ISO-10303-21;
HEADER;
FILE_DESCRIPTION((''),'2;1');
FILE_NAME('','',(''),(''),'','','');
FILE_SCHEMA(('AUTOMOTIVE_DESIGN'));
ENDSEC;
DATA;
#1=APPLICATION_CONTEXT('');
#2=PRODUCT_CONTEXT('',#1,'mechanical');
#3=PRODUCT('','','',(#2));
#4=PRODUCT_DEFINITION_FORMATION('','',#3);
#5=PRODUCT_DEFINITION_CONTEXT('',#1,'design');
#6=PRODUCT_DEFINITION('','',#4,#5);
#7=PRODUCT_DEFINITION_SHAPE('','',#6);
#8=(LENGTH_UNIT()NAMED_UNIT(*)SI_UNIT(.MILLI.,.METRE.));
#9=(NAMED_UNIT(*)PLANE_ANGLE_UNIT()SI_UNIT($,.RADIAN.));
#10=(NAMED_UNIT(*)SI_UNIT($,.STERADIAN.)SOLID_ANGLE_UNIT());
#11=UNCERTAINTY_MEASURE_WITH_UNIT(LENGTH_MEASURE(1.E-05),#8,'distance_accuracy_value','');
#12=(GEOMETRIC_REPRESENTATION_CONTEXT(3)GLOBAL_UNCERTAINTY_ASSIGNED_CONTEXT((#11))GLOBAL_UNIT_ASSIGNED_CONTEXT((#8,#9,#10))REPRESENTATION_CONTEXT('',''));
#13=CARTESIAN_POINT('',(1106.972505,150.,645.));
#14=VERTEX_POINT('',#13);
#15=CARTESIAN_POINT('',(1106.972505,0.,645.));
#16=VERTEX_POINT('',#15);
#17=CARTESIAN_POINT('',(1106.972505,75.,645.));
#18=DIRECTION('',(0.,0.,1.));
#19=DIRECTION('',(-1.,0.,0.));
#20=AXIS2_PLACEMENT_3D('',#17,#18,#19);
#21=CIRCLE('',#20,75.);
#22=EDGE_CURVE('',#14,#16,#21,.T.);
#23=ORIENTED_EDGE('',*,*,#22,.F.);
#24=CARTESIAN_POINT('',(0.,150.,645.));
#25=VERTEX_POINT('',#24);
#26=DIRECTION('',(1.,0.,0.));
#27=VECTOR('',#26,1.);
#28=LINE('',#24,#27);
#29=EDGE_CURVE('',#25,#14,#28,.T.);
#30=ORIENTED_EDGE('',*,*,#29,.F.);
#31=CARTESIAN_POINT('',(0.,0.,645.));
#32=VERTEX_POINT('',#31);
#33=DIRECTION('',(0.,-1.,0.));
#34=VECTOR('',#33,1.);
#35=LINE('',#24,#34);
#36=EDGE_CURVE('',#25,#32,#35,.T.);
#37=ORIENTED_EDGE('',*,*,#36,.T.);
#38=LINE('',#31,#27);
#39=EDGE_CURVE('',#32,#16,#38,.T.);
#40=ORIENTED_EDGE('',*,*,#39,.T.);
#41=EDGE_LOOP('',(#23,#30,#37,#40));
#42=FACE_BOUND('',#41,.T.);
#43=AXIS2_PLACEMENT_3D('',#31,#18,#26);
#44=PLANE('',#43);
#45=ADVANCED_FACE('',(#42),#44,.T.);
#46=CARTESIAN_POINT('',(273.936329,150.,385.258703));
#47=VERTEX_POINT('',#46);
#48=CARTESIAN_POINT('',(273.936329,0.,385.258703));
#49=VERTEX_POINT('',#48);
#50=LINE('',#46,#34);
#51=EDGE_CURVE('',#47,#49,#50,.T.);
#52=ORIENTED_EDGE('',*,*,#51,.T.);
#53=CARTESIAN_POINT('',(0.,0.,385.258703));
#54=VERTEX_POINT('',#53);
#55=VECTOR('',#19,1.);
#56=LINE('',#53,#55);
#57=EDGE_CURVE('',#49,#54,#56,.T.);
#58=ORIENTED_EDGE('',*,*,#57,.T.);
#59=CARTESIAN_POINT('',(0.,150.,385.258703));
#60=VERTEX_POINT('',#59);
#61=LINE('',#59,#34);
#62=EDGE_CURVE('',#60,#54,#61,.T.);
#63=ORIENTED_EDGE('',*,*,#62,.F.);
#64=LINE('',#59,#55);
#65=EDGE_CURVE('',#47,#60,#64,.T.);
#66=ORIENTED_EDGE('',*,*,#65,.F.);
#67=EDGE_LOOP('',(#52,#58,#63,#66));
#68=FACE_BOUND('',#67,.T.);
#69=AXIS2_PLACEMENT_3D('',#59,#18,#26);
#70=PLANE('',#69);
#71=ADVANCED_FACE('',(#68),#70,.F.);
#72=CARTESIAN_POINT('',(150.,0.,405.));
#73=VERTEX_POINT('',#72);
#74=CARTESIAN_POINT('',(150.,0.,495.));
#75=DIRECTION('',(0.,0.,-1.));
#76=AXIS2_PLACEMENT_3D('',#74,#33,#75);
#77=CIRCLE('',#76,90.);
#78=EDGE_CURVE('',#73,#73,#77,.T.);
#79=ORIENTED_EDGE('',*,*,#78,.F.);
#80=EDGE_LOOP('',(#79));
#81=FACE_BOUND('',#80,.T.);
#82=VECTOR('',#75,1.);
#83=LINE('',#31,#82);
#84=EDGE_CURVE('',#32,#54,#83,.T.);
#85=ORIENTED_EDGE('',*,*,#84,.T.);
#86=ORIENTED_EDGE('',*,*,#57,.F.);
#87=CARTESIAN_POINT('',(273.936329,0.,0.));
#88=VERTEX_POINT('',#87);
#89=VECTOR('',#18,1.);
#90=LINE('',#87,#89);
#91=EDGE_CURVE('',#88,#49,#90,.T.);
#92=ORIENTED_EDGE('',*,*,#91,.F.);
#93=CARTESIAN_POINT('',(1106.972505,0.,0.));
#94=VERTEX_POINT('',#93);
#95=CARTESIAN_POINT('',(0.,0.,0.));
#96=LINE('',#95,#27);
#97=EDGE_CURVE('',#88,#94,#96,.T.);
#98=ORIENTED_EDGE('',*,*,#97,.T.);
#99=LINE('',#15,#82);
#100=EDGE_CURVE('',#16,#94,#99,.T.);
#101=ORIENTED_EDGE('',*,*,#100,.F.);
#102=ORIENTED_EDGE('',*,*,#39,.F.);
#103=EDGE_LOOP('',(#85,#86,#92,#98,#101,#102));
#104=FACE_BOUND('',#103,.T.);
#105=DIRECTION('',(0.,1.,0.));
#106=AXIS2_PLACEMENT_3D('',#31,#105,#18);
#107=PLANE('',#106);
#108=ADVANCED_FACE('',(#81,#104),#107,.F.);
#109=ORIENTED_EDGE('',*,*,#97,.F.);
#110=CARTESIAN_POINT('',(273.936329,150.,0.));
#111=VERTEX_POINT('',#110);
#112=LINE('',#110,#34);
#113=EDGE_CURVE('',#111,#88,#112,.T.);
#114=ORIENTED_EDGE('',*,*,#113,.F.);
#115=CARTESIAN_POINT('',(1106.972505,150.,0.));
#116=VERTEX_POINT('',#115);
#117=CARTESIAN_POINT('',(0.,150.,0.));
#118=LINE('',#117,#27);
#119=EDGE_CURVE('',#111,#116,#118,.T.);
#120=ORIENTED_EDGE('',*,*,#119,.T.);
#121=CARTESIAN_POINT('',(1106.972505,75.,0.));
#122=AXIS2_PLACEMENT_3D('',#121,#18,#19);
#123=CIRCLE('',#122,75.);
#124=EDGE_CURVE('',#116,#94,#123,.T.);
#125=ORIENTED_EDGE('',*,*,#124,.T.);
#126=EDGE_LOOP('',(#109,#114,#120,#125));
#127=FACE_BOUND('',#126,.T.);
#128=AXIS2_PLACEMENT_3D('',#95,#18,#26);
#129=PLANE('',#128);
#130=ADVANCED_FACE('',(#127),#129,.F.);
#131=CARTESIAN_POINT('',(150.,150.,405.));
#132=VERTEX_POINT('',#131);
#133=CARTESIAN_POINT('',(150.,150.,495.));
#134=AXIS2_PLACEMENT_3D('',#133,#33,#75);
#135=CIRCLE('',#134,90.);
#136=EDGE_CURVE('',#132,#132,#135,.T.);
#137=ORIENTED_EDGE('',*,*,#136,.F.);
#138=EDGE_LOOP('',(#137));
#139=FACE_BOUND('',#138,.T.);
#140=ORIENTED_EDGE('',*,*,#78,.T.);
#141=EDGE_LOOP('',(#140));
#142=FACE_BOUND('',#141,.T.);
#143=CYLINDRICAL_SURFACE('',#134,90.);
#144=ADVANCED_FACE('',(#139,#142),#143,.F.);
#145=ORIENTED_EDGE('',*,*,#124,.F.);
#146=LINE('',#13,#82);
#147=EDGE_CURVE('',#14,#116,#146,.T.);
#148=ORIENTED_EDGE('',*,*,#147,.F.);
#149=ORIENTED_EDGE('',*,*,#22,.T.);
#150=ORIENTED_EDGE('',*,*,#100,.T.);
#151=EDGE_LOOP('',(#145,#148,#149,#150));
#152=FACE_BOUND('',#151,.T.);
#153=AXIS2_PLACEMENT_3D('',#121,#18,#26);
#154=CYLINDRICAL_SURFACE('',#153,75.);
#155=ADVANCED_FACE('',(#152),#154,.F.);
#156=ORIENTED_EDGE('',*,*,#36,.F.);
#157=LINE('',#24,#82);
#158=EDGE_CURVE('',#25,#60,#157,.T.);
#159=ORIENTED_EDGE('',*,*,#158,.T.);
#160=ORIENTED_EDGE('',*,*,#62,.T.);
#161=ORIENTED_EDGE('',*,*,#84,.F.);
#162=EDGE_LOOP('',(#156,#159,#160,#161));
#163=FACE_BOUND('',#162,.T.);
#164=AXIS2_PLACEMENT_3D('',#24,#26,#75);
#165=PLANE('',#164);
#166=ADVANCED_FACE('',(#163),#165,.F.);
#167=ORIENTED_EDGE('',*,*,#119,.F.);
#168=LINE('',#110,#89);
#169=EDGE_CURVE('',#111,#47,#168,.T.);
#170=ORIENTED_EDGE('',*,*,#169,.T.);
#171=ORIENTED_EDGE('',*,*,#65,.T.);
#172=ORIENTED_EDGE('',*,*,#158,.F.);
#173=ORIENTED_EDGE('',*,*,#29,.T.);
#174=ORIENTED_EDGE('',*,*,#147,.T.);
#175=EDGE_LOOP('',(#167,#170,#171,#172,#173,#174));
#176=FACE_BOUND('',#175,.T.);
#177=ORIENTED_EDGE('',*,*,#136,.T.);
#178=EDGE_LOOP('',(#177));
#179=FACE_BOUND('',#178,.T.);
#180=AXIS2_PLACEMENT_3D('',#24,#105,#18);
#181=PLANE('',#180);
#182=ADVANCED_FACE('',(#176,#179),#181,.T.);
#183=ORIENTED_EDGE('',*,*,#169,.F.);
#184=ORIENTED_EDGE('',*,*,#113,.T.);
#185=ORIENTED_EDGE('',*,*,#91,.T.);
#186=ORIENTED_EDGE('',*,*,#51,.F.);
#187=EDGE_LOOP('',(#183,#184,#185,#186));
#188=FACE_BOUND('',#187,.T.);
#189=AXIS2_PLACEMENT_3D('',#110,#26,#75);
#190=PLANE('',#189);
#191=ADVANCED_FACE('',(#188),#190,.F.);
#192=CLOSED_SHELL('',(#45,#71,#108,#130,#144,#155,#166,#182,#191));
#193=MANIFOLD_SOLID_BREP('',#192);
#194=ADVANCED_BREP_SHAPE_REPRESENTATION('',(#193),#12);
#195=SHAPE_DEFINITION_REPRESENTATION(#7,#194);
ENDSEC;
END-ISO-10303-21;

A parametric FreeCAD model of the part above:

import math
import FreeCAD as App
import Part
import Sketcher

doc = App.newDocument("Part")
params = doc.addObject("Spreadsheet::Sheet", "Params")
for row, (alias, value) in enumerate([
    ("sketch1_height", "150 mm"),
    ("pad1_length", "645 mm"),
    ("sketch2_diameter", "180 mm"),
    ("sketch4_radius", "75 mm"),
], start=1):
    params.set(f"A{row}", alias)
    params.set(f"B{row}", "=" + value)
    params.setAlias(f"B{row}", alias)

body = doc.addObject("PartDesign::Body", "Body")

sketch1 = body.newObject("Sketcher::SketchObject", "Sketch")
sketch1.AttachmentSupport = (doc.getObject("XY_Plane"), [""])
sketch1.MapMode = "FlatFace"
sketch1.addGeometry([
    Part.LineSegment(App.Vector(0, 150, 0), App.Vector(0, 0, 0)),
    Part.LineSegment(App.Vector(0, 0, 0), App.Vector(1106.972505, 0, 0)),
    Part.LineSegment(App.Vector(1106.972505, 0, 0), App.Vector(1106.972505, 150, 0)),
    Part.LineSegment(App.Vector(1106.972505, 150, 0), App.Vector(0, 150, 0)),
], False)
sketch1.addConstraint([
    Sketcher.Constraint("Coincident", 0, 2, 1, 1),
    Sketcher.Constraint("Coincident", 1, 2, 2, 1),
    Sketcher.Constraint("Coincident", 2, 2, 3, 1),
    Sketcher.Constraint("Coincident", 3, 2, 0, 1),
    Sketcher.Constraint("Vertical", 0),
    Sketcher.Constraint("Horizontal", 1),
    Sketcher.Constraint("Vertical", 2),
    Sketcher.Constraint("Horizontal", 3),
    Sketcher.Constraint("Coincident", 0, 2, -1, 1),
    Sketcher.Constraint("DistanceY", 0, 2, 0, 1, 150.0),
    Sketcher.Constraint("DistanceX", 1, 1, 1, 2, 1106.972505),
])
sketch1.setExpression("Constraints[9]", "Params.sketch1_height")
pad1 = body.newObject("PartDesign::Pad", "Pad")
pad1.Profile = sketch1
pad1.setExpression("Length", "Params.pad1_length")

sketch2 = body.newObject("Sketcher::SketchObject", "Sketch001")
sketch2.AttachmentSupport = (doc.getObject("XZ_Plane"), [""])
sketch2.MapMode = "FlatFace"
sketch2.addGeometry(Part.Circle(App.Vector(150, 495, 0), App.Vector(0, 0, 1), 90), False)
sketch2.addConstraint([
    Sketcher.Constraint("Diameter", 0, 180.0),
    Sketcher.Constraint("DistanceX", -1, 1, 0, 3, 150.0),
    Sketcher.Constraint("DistanceY", -1, 1, 0, 3, 495.0),
])
sketch2.setExpression("Constraints[0]", "Params.sketch2_diameter")
pocket1 = body.newObject("PartDesign::Pocket", "Pocket")
pocket1.Profile = sketch2
pocket1.Type = "ThroughAll"

sketch3 = body.newObject("Sketcher::SketchObject", "Sketch002")
sketch3.AttachmentSupport = (doc.getObject("XZ_Plane"), [""])
sketch3.MapMode = "FlatFace"
sketch3.addGeometry([
    Part.LineSegment(App.Vector(0, 385.258703, 0), App.Vector(0, 0, 0)),
    Part.LineSegment(App.Vector(0, 0, 0), App.Vector(273.936329, 0, 0)),
    Part.LineSegment(App.Vector(273.936329, 0, 0), App.Vector(273.936329, 385.258703, 0)),
    Part.LineSegment(App.Vector(273.936329, 385.258703, 0), App.Vector(0, 385.258703, 0)),
], False)
sketch3.addConstraint([
    Sketcher.Constraint("Coincident", 0, 2, 1, 1),
    Sketcher.Constraint("Coincident", 1, 2, 2, 1),
    Sketcher.Constraint("Coincident", 2, 2, 3, 1),
    Sketcher.Constraint("Coincident", 3, 2, 0, 1),
    Sketcher.Constraint("Vertical", 0),
    Sketcher.Constraint("Horizontal", 1),
    Sketcher.Constraint("Vertical", 2),
    Sketcher.Constraint("Horizontal", 3),
    Sketcher.Constraint("Coincident", 0, 2, -1, 1),
    Sketcher.Constraint("DistanceX", 1, 1, 1, 2, 273.936329),
    Sketcher.Constraint("DistanceY", 0, 2, 0, 1, 385.258703),
])
pocket2 = body.newObject("PartDesign::Pocket", "Pocket001")
pocket2.Profile = sketch3
pocket2.Type = "ThroughAll"

sketch4 = body.newObject("Sketcher::SketchObject", "Sketch003")
sketch4.AttachmentSupport = (doc.getObject("XY_Plane"), [""])
sketch4.MapMode = "FlatFace"
sketch4.AttachmentOffset = App.Placement(App.Vector(0, 0, 645), App.Rotation())
sketch4.addGeometry([
    Part.LineSegment(App.Vector(1106.972505, 0, 0), App.Vector(1106.972505, 150, 0)),
    Part.ArcOfCircle(Part.Circle(App.Vector(1106.972505, 75, 0), App.Vector(0, 0, 1), 75), math.radians(90), math.radians(270)),
], False)
sketch4.addConstraint([
    Sketcher.Constraint("Coincident", 0, 1, 1, 2),
    Sketcher.Constraint("Coincident", 1, 1, 0, 2),
    Sketcher.Constraint("Vertical", 0),
    Sketcher.Constraint("PointOnObject", 0, 1, -1),
    Sketcher.Constraint("Vertical", 1, 3, 0, 1),
    Sketcher.Constraint("Radius", 1, 75.0),
    Sketcher.Constraint("DistanceX", -1, 1, 1, 3, 1106.972505),
])
sketch4.setExpression("Constraints[5]", "Params.sketch4_radius")
pocket3 = body.newObject("PartDesign::Pocket", "Pocket002")
pocket3.Profile = sketch4
pocket3.Type = "ThroughAll"

doc.recompute()
